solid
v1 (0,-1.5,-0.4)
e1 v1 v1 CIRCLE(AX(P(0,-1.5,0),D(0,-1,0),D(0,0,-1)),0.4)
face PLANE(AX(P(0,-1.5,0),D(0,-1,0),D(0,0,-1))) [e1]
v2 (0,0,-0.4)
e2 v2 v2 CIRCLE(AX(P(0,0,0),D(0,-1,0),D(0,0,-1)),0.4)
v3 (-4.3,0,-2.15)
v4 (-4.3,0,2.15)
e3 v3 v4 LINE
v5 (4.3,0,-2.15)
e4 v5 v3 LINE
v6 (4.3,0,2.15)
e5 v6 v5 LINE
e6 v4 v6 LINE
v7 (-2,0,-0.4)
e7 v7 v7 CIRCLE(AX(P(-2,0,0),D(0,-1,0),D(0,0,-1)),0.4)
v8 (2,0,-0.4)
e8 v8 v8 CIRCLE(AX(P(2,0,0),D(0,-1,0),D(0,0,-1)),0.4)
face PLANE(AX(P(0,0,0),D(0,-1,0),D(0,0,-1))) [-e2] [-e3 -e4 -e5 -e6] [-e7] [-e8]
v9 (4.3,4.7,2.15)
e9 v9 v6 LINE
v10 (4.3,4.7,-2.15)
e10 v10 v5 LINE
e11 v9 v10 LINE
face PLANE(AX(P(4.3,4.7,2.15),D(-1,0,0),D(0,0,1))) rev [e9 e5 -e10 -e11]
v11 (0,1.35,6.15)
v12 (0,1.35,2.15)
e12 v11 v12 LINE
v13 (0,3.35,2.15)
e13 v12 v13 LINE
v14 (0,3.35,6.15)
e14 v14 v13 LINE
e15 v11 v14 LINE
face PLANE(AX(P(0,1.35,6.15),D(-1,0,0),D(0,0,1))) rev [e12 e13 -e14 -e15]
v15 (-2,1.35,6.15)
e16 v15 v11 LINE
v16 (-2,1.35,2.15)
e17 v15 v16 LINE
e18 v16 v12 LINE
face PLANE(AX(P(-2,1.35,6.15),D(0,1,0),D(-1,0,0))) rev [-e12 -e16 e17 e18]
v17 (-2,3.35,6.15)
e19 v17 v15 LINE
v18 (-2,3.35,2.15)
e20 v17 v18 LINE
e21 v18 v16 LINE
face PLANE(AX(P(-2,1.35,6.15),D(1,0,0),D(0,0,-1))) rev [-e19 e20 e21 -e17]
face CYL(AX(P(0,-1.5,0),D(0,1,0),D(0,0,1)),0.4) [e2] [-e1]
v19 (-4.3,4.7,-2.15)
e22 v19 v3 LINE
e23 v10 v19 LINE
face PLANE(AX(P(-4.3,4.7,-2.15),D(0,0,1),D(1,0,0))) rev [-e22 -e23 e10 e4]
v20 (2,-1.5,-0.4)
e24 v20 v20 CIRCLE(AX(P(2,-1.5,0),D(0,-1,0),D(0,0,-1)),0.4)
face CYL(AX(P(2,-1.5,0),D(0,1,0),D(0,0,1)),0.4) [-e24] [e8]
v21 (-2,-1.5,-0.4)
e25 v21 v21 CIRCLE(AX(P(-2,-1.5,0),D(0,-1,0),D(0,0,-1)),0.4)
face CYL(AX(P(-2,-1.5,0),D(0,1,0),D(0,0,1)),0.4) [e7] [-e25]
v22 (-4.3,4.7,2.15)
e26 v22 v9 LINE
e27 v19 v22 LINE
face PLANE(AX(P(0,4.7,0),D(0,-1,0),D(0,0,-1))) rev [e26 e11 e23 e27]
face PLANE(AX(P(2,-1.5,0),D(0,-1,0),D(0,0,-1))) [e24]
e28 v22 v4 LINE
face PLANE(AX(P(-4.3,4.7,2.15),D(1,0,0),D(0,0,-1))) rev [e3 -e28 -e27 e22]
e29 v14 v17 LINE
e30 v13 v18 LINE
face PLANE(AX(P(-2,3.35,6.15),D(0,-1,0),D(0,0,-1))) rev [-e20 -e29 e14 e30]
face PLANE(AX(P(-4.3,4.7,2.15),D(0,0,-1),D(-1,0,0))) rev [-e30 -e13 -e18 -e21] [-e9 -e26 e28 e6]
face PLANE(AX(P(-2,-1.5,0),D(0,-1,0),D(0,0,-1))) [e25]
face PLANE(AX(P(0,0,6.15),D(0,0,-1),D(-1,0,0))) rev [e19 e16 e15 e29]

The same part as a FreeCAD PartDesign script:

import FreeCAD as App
import Part
import Sketcher


def add_polygon(sketch, points):
    """Adds a closed chain of lines whose ends are joined by coincident constraints."""
    first, n = sketch.GeometryCount, len(points)
    for a, b in zip(points, points[1:] + points[:1]):
        sketch.addGeometry(Part.LineSegment(App.Vector(*a, 0), App.Vector(*b, 0)), False)
    for i in range(n):
        sketch.addConstraint(Sketcher.Constraint("Coincident", first + i, 2, first + (i + 1) % n, 1))

doc = App.newDocument("Part")
body = doc.addObject("PartDesign::Body", "Body")

# Sketch on XZ plane
sketch1 = body.newObject("Sketcher::SketchObject", "Sketch")
sketch1.AttachmentSupport = (doc.getObject("XZ_Plane"), [""])
sketch1.MapMode = "FlatFace"
add_polygon(sketch1, [(-4.3, -2.1), (-4.3, 2.1), (4.3, 2.1), (4.3, -2.1)])  # lines 0-3
sketch1.addConstraint([
    Sketcher.Constraint("Vertical", 0),
    Sketcher.Constraint("Horizontal", 1),
    Sketcher.Constraint("Vertical", 2),
    Sketcher.Constraint("Horizontal", 3),
    Sketcher.Constraint("Symmetric", 0, 2, 2, 2, -1, 1),
    Sketcher.Constraint("DistanceX", 1, 1, 1, 2, 8.6),
    Sketcher.Constraint("DistanceY", 0, 1, 0, 2, 4.3),
])
pad1 = body.newObject("PartDesign::Pad", "Pad")
pad1.Profile = sketch1
pad1.Length = 4.7
pad1.Reversed = True

# Sketch on XY plane
sketch2 = body.newObject("Sketcher::SketchObject", "Sketch001")
sketch2.AttachmentSupport = (doc.getObject("XY_Plane"), [""])
sketch2.MapMode = "FlatFace"
sketch2.AttachmentOffset = App.Placement(App.Vector(0, 0, 2.15), App.Rotation())
add_polygon(sketch2, [(-2, 3.4), (-2, 1.4), (0, 1.4), (0, 3.4)])  # lines 0-3
sketch2.addConstraint([
    Sketcher.Constraint("Vertical", 0),
    Sketcher.Constraint("Horizontal", 1),
    Sketcher.Constraint("Vertical", 2),
    Sketcher.Constraint("Horizontal", 3),
    Sketcher.Constraint("PointOnObject", 1, 2, -2),
    Sketcher.Constraint("Equal", 3, 0),
    Sketcher.Constraint("DistanceX", 1, 1, 1, 2, 2.0),
    Sketcher.Constraint("DistanceY", -1, 1, 0, 2, 1.35),
])
pad2 = body.newObject("PartDesign::Pad", "Pad001")
pad2.Profile = sketch2
pad2.Length = 4

# Sketch on XZ plane
sketch3 = body.newObject("Sketcher::SketchObject", "Sketch002")
sketch3.AttachmentSupport = (doc.getObject("XZ_Plane"), [""])
sketch3.MapMode = "FlatFace"
sketch3.addGeometry([
    Part.Circle(App.Vector(-2, 0, 0), App.Vector(0, 0, 1), 0.4),
    Part.Circle(App.Vector(0, 0, 0), App.Vector(0, 0, 1), 0.4),
    Part.Circle(App.Vector(2, 0, 0), App.Vector(0, 0, 1), 0.4),
], False)
sketch3.addConstraint([
    Sketcher.Constraint("Coincident", 1, 3, -1, 1),
    Sketcher.Constraint("Equal", 0, 1),
    Sketcher.Constraint("Equal", 1, 2),
    Sketcher.Constraint("Symmetric", 0, 3, 2, 3, -1, 1),
    Sketcher.Constraint("PointOnObject", 0, 3, -1),
    Sketcher.Constraint("Diameter", 0, 0.8),
    Sketcher.Constraint("DistanceX", 0, 3, -1, 1, 2.0),
])
pad3 = body.newObject("PartDesign::Pad", "Pad002")
pad3.Profile = sketch3
pad3.Length = 1.5

doc.recompute()
